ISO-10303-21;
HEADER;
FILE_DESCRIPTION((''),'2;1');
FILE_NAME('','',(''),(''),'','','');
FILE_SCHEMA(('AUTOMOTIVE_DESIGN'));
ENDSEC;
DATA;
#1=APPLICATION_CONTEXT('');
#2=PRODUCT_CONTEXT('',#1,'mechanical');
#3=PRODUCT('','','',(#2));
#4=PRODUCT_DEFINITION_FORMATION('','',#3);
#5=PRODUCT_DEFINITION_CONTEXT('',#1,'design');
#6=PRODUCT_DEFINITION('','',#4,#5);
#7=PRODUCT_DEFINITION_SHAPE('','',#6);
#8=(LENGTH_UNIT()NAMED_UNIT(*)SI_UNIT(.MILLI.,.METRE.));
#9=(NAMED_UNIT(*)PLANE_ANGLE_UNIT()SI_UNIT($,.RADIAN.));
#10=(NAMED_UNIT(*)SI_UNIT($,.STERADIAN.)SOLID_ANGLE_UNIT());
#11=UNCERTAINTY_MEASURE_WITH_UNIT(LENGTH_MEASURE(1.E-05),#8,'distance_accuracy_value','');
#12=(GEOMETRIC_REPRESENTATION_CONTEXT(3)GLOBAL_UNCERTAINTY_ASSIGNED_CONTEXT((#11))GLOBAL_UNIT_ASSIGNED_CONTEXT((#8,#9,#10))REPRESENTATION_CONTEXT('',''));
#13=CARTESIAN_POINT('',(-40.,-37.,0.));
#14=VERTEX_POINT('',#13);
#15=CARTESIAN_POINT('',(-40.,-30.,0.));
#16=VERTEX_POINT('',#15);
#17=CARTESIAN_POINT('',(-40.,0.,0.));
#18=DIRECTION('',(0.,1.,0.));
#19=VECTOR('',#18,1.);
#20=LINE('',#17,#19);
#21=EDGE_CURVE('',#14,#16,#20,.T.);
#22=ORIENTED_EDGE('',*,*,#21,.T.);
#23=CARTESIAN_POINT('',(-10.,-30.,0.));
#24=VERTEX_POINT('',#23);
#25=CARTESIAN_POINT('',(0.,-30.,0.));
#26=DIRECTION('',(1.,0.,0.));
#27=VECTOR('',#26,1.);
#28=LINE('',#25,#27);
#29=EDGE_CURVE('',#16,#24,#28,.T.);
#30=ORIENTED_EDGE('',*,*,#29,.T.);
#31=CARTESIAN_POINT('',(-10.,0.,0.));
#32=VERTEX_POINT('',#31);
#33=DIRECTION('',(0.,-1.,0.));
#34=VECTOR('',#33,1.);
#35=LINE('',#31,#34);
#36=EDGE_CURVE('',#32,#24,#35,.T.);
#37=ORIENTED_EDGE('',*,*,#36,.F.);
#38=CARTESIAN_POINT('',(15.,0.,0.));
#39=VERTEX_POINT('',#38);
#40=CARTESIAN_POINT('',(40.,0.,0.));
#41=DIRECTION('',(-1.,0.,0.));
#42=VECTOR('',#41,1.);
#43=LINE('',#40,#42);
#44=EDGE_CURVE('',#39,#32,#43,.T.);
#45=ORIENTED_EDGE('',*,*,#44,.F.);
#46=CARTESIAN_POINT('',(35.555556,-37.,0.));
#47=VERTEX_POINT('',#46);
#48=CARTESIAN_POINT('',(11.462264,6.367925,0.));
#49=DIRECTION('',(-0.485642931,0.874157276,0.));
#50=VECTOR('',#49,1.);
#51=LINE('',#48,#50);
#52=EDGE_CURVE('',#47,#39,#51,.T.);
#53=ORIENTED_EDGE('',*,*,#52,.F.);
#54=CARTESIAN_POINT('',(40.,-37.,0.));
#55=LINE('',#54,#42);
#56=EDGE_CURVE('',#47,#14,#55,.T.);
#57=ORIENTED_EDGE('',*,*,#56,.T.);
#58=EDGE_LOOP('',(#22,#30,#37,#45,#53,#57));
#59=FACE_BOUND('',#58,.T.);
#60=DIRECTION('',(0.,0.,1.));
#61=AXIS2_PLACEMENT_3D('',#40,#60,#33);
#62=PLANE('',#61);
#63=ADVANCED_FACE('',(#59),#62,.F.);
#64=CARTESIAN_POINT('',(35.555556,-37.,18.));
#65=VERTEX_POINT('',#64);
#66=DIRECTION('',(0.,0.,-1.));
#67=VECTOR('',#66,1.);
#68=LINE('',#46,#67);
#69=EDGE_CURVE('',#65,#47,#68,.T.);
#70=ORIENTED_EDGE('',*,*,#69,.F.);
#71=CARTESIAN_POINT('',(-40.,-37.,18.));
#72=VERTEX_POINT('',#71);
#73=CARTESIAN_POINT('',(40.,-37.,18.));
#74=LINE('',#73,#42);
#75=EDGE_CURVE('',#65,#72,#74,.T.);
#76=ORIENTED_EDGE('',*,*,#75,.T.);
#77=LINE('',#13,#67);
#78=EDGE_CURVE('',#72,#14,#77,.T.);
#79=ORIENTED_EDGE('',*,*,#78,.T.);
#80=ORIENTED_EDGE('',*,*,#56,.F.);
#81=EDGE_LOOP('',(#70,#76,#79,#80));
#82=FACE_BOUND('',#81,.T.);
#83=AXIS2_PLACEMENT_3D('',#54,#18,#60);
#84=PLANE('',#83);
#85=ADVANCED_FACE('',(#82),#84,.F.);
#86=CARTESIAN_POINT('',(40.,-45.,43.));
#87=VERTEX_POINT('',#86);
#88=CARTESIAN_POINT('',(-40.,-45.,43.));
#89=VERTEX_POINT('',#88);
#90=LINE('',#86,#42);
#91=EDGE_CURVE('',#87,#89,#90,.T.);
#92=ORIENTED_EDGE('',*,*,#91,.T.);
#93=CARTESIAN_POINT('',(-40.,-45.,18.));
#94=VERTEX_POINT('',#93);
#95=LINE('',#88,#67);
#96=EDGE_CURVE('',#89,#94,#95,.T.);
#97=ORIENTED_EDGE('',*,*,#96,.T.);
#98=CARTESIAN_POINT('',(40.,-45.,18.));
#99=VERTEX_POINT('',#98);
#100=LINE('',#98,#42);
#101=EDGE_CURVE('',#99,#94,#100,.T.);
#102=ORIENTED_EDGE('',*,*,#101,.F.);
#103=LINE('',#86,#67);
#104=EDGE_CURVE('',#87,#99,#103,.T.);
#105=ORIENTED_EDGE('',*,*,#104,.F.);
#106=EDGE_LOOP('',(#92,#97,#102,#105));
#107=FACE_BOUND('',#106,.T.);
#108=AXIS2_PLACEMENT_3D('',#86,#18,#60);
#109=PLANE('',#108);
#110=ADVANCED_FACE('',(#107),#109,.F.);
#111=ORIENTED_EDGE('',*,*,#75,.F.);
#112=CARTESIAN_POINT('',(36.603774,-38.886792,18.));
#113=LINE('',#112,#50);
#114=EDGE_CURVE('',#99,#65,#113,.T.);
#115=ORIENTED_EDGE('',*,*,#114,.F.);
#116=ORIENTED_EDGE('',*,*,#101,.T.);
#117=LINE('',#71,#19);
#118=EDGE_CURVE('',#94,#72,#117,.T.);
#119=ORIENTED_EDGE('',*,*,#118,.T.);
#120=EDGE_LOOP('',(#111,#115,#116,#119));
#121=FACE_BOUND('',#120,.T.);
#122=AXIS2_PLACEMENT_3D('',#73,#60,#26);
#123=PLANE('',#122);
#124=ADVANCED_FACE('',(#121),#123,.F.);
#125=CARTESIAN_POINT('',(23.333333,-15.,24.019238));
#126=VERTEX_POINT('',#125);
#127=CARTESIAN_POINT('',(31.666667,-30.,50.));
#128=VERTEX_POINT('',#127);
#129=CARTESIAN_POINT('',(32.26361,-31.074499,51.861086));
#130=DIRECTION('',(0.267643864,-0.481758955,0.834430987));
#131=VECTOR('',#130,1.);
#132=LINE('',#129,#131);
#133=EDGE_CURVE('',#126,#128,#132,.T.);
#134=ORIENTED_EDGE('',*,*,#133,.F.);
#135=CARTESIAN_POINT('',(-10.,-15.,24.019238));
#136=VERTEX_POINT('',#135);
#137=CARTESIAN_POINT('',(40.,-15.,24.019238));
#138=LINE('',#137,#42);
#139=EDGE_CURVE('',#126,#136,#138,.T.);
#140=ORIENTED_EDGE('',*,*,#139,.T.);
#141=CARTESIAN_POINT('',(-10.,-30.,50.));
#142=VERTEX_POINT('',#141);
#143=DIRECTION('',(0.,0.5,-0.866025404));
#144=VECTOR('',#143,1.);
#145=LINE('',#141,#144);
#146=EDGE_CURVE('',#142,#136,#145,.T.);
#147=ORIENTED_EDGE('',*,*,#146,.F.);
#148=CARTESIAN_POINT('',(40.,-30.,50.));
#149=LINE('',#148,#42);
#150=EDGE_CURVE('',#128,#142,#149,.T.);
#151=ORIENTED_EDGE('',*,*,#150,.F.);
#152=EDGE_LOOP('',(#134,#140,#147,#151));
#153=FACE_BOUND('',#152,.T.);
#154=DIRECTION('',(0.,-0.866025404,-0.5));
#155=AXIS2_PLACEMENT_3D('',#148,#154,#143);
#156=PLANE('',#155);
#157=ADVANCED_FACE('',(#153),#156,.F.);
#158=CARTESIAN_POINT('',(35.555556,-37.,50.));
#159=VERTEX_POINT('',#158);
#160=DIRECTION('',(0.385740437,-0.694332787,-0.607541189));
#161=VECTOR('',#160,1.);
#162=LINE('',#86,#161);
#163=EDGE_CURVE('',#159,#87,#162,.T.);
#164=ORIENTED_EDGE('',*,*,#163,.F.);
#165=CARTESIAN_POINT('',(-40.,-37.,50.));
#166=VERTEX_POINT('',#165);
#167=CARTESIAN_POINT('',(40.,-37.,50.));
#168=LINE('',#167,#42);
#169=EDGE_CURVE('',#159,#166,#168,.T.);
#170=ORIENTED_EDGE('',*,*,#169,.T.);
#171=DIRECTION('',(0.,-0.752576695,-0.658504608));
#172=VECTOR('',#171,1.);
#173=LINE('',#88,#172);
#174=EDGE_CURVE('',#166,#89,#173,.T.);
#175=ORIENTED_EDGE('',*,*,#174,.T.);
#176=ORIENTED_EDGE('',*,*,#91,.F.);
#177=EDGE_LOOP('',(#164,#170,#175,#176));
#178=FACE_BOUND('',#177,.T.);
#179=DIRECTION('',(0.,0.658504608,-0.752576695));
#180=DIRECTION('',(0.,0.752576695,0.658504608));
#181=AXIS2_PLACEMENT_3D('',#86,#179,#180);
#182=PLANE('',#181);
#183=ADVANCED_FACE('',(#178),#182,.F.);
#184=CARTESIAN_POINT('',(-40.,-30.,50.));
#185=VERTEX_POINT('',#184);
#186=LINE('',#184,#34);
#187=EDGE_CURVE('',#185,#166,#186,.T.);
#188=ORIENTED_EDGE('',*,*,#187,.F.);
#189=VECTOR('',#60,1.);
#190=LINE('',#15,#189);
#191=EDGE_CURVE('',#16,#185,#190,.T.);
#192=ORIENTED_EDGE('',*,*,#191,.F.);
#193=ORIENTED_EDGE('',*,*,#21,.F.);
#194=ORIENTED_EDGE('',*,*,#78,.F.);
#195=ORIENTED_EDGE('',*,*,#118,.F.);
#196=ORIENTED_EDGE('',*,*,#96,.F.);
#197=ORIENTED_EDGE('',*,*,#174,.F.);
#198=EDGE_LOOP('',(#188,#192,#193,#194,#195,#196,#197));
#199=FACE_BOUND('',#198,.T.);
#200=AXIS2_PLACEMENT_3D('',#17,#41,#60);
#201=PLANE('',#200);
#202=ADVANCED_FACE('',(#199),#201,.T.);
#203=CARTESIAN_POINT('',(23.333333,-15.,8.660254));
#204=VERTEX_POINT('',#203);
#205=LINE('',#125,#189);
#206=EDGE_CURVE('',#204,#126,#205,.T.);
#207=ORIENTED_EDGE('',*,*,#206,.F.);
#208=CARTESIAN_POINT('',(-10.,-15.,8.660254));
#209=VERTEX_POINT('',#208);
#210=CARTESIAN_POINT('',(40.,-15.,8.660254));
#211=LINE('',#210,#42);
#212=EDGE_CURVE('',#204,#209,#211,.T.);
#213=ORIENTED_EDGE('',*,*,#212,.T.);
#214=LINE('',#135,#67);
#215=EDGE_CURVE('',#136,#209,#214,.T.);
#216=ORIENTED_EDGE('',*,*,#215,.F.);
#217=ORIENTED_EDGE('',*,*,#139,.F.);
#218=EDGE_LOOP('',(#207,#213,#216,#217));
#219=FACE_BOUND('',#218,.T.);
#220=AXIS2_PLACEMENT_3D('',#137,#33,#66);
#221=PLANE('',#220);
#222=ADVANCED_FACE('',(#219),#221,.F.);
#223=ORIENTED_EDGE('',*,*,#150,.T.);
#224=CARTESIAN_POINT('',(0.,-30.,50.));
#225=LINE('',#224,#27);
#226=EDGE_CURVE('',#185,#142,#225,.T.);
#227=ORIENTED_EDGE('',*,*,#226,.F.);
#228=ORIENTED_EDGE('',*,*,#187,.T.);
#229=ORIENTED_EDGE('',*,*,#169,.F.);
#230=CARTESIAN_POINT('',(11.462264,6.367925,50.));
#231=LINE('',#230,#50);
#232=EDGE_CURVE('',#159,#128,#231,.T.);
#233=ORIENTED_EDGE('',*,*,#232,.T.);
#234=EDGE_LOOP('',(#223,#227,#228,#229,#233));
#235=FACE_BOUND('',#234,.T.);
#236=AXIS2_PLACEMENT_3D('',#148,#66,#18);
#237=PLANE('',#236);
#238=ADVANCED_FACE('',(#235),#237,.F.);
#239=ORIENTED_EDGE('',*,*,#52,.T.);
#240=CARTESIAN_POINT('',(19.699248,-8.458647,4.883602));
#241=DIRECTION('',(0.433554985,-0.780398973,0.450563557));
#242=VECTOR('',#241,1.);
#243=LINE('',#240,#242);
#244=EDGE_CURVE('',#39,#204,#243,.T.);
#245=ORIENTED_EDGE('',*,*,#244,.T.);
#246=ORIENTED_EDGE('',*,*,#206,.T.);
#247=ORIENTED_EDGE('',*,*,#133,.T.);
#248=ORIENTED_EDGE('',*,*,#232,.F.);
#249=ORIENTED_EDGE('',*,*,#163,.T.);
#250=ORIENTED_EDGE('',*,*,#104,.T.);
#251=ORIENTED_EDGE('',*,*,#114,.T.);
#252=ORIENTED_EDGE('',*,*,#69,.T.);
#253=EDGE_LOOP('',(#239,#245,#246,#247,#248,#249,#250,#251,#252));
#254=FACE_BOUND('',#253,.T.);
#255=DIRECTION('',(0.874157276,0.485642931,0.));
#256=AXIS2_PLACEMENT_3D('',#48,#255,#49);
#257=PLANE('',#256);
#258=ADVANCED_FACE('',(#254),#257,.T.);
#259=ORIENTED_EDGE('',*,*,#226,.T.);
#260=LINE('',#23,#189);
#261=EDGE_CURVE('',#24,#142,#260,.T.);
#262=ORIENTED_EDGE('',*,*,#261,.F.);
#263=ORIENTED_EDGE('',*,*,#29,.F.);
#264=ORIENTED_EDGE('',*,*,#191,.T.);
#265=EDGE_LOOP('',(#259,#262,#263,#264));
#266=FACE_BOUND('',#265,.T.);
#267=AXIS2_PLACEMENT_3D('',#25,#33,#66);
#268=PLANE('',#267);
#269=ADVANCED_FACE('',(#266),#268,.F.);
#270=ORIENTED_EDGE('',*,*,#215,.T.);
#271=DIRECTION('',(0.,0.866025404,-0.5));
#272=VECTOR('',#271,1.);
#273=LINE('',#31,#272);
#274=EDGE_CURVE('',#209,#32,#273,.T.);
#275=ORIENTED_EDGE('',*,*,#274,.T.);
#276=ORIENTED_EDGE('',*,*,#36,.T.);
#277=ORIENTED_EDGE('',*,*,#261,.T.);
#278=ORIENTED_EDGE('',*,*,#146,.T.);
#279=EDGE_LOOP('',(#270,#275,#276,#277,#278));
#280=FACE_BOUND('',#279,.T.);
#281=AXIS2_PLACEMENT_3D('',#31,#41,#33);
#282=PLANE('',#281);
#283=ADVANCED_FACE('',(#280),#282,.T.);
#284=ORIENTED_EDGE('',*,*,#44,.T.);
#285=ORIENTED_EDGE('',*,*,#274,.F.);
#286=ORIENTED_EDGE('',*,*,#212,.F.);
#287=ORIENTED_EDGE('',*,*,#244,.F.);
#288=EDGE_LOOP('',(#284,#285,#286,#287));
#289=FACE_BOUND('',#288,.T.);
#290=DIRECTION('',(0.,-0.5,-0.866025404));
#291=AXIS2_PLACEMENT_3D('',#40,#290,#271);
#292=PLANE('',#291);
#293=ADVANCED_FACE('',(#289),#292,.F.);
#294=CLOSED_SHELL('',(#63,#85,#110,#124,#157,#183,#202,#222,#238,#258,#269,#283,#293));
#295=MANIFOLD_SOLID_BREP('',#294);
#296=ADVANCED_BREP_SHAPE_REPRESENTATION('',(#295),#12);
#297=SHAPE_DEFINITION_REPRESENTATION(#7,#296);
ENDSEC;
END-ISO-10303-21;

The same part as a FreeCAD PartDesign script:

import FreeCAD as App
import Part
import Sketcher
from FreeCAD import Vector
Q = App.Units.Quantity


def add_polygon(sketch, points):
    """Adds a closed chain of lines whose ends are joined by coincident constraints."""
    first, n = sketch.GeometryCount, len(points)
    for a, b in zip(points, points[1:] + points[:1]):
        sketch.addGeometry(Part.LineSegment(App.Vector(*a, 0), App.Vector(*b, 0)), False)
    for i in range(n):
        sketch.addConstraint(Sketcher.Constraint("Coincident", first + i, 2, first + (i + 1) % n, 1))

doc = App.newDocument("Part")
body = doc.addObject("PartDesign::Body", "Body")

sketch1 = doc.addObject("Sketcher::SketchObject", "Sketch")
body.addObject(sketch1)
sketch1.AttachmentSupport = (doc.YZ_Plane, [""])
sketch1.MapMode = "FlatFace"
add_polygon(sketch1, [(-30, 50), (-37, 50), (-45, 43), (-45, 18), (-37, 18), (-37, 0), (0, 0), (-15, 9), (-15, 24)])
sketch1.addConstraint([
    Sketcher.Constraint("Horizontal", 0),
    Sketcher.Constraint("Vertical", 2),
    Sketcher.Constraint("Horizontal", 3),
    Sketcher.Constraint("Vertical", 4),
    Sketcher.Constraint("Horizontal", 5),
    Sketcher.Constraint("Vertical", 7),
    Sketcher.Constraint("Coincident", 5, 2, -1, 1),
    Sketcher.Constraint("Vertical", 0, 2, 3, 2),
    Sketcher.Constraint("DistanceX", 0, 2, 0, 1, Q("7 mm")),
    Sketcher.Constraint("DistanceX", 3, 1, 3, 2, Q("8 mm")),
    Sketcher.Constraint("DistanceX", 5, 1, 5, 2, Q("37 mm")),
    Sketcher.Constraint("DistanceY", 2, 2, 2, 1, Q("25 mm")),
    Sketcher.Constraint("DistanceY", 4, 2, 4, 1, Q("18 mm")),
    Sketcher.Constraint("Angle", 6, Q("150 deg")),
    Sketcher.Constraint("Angle", 8, Q("120 deg")),
    Sketcher.Constraint("Distance", 8, Q("30 mm")),
    Sketcher.Constraint("DistanceY", -1, 1, 0, 2, Q("50 mm")),
])
pad1 = doc.addObject("PartDesign::Pad", "Pad")
body.addObject(pad1)
pad1.Profile = sketch1
pad1.Length = 80
pad1.Midplane = True

sketch2 = doc.addObject("Sketcher::SketchObject", "Sketch001")
body.addObject(sketch2)
sketch2.AttachmentSupport = (doc.XY_Plane, [""])
sketch2.MapMode = "FlatFace"
sketch2.AttachmentOffset = App.Placement(Vector(0, 0, 50), App.Rotation())
add_polygon(sketch2, [(-10, 0), (-40, 0), (-40, -30), (-10, -30)])
sketch2.addConstraint([
    Sketcher.Constraint("Horizontal", 0),
    Sketcher.Constraint("Vertical", 1),
    Sketcher.Constraint("Horizontal", 2),
    Sketcher.Constraint("Vertical", 3),
    Sketcher.Constraint("PointOnObject", 0, 2, -1),
    Sketcher.Constraint("Equal", 2, 1),
    Sketcher.Constraint("DistanceX", 0, 2, 0, 1, Q("30 mm")),
    Sketcher.Constraint("DistanceX", 0, 2, -1, 1, Q("40 mm")),
])
pocket1 = doc.addObject("PartDesign::Pocket", "Pocket")
body.addObject(pocket1)
pocket1.Profile = sketch2
pocket1.Type = "ThroughAll"

sketch3 = doc.addObject("Sketcher::SketchObject", "Sketch002")
body.addObject(sketch3)
sketch3.AttachmentSupport = (doc.XY_Plane, [""])
sketch3.MapMode = "FlatFace"
sketch3.AttachmentOffset = App.Placement(Vector(0, 0, 50), App.Rotation())
add_polygon(sketch3, [(40, 0), (15, 0), (23, -15), (40, -45)])
sketch3.addConstraint([
    Sketcher.Constraint("Horizontal", 0),
    Sketcher.Constraint("Vertical", 3),
    Sketcher.Constraint("PointOnObject", 0, 2, -1),
    Sketcher.Constraint("Parallel", 1, 2),
    Sketcher.Constraint("DistanceX", 0, 2, 0, 1, Q("25 mm")),
    Sketcher.Constraint("DistanceY", 3, 1, 3, 2, Q("45 mm")),
    Sketcher.Constraint("DistanceX", -1, 1, 0, 2, Q("15 mm")),
    Sketcher.Constraint("DistanceY", 1, 2, -1, 1, Q("15 mm")),
])
pocket2 = doc.addObject("PartDesign::Pocket", "Pocket001")
body.addObject(pocket2)
pocket2.Profile = sketch3
pocket2.Type = "ThroughAll"

doc.recompute()
